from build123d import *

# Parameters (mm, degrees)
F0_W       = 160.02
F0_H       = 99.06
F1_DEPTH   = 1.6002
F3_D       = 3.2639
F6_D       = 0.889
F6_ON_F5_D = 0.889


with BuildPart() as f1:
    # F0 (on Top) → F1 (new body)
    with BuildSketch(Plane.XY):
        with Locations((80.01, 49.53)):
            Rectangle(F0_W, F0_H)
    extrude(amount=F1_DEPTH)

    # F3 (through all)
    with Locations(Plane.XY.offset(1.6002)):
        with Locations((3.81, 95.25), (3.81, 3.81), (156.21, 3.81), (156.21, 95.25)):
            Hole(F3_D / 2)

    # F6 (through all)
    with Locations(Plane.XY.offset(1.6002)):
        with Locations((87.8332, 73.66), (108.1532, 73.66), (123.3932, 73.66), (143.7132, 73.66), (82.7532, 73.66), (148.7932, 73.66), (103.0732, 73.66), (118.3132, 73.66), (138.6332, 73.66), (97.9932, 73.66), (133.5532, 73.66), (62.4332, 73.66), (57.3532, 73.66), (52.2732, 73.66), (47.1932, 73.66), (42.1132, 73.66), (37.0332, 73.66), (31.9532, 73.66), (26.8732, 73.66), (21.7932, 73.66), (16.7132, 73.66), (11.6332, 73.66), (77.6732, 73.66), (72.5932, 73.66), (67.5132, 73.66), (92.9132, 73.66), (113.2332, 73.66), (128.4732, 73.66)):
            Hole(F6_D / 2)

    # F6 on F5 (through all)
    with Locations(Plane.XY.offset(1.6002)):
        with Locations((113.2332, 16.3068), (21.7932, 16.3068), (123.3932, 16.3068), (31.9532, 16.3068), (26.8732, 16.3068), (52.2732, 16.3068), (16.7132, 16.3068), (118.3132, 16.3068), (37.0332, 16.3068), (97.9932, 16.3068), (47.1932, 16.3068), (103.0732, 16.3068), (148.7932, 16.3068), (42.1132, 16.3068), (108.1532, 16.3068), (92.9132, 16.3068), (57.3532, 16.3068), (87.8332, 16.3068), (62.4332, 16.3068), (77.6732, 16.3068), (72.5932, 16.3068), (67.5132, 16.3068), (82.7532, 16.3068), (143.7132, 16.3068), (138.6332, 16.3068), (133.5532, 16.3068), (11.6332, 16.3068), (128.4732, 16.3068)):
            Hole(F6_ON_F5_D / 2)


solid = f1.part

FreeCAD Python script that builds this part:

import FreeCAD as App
import Part
import Sketcher
Q = App.Units.Quantity


def add_polygon(sketch, points):
    """Adds a closed chain of lines whose ends are joined by coincident constraints."""
    first, n = sketch.GeometryCount, len(points)
    for a, b in zip(points, points[1:] + points[:1]):
        sketch.addGeometry(Part.LineSegment(App.Vector(*a, 0), App.Vector(*b, 0)), False)
    for i in range(n):
        sketch.addConstraint(Sketcher.Constraint("Coincident", first + i, 2, first + (i + 1) % n, 1))

doc = App.newDocument("Part")
params = doc.addObject("Spreadsheet::Sheet", "Params")
for row, (alias, value) in enumerate([
    ("sketch1_width", "6.3 in"),
    ("sketch1_height", "3.9 in"),
    ("pad1_length", "0.063 in"),
    ("hole_diameter", "0.1285 in"),
    ("sketch3_diameter", "0.035 in"),
    ("hole2_diameter", "0.035 in"),
    ("sketch4_diameter", "0.035 in"),
    ("hole3_diameter", "0.035 in"),
], start=1):
    params.set(f"A{row}", alias)
    params.set(f"B{row}", "=" + value)
    params.setAlias(f"B{row}", alias)

body = doc.addObject("PartDesign::Body", "Body")

# Sketch on XY plane
sketch1 = doc.addObject("Sketcher::SketchObject", "Sketch")
body.addObject(sketch1)
sketch1.AttachmentSupport = (doc.XY_Plane, [""])
sketch1.MapMode = "FlatFace"
add_polygon(sketch1, [(0, 99), (0, 0), (160, 0), (160, 99)])  # lines 0-3
sketch1.addConstraint(Sketcher.Constraint("Vertical", 0))
sketch1.addConstraint(Sketcher.Constraint("Horizontal", 1))
sketch1.addConstraint(Sketcher.Constraint("Vertical", 2))
sketch1.addConstraint(Sketcher.Constraint("Horizontal", 3))
sketch1.addConstraint(Sketcher.Constraint("Coincident", 0, 2, -1, 1))
sketch1.addConstraint(Sketcher.Constraint("DistanceX", 1, 1, 1, 2, Q("6.3 in")))
sketch1.addConstraint(Sketcher.Constraint("DistanceY", 0, 2, 0, 1, Q("3.9 in")))
sketch1.setExpression("Constraints[9]", "Params.sketch1_width")
sketch1.setExpression("Constraints[10]", "Params.sketch1_height")
pad1 = doc.addObject("PartDesign::Pad", "Pad")
body.addObject(pad1)
pad1.Profile = sketch1
pad1.setExpression("Length", "Params.pad1_length")

# Sketch on XY plane
sketch2 = doc.addObject("Sketcher::SketchObject", "Sketch001")
body.addObject(sketch2)
sketch2.AttachmentSupport = (doc.XY_Plane, [""])
sketch2.MapMode = "FlatFace"
sketch2.AttachmentOffset = App.Placement(App.Vector(0, 0, 0.063 * 25.4), App.Rotation())
sketch2.addGeometry(Part.Circle(App.Vector(3.8, 95.2, 0), App.Vector(0, 0, 1), 1.6), False)
sketch2.addGeometry(Part.Circle(App.Vector(3.8, 3.8, 0), App.Vector(0, 0, 1), 1.6), False)
sketch2.addGeometry(Part.Circle(App.Vector(156.2, 3.8, 0), App.Vector(0, 0, 1), 1.6), False)
sketch2.addGeometry(Part.Circle(App.Vector(156.2, 95.2, 0), App.Vector(0, 0, 1), 1.6), False)
sketch2.addConstraint(Sketcher.Constraint("Equal", 0, 1))
sketch2.addConstraint(Sketcher.Constraint("Equal", 1, 2))
sketch2.addConstraint(Sketcher.Constraint("Equal", 2, 3))
sketch2.addConstraint(Sketcher.Constraint("Horizontal", 1, 3, 2, 3))
sketch2.addConstraint(Sketcher.Constraint("Horizontal", 0, 3, 3, 3))
sketch2.addConstraint(Sketcher.Constraint("Vertical", 0, 3, 1, 3))
sketch2.addConstraint(Sketcher.Constraint("Vertical", 2, 3, 3, 3))
sketch2.addConstraint(Sketcher.Constraint("DistanceX", 1, 3, 2, 3, Q("6 in")))
sketch2.addConstraint(Sketcher.Constraint("Diameter", 0, Q("0.1285 in")))
sketch2.addConstraint(Sketcher.Constraint("DistanceY", 1, 3, 0, 3, Q("3.6 in")))
sketch2.addConstraint(Sketcher.Constraint("DistanceX", -1, 1, 0, 3, Q("0.15 in")))
sketch2.addConstraint(Sketcher.Constraint("DistanceY", -1, 1, 0, 3, Q("3.75 in")))
doc.recompute()
hole = doc.addObject("PartDesign::Hole", "Hole")
body.addObject(hole)
hole.Profile = sketch2
hole.ThreadType = "None"
hole.setExpression("Diameter", "Params.hole_diameter")
hole.DepthType = "ThroughAll"

# Sketch on XY plane
sketch3 = doc.addObject("Sketcher::SketchObject", "Sketch002")
body.addObject(sketch3)
sketch3.AttachmentSupport = (doc.XY_Plane, [""])
sketch3.MapMode = "FlatFace"
sketch3.AttachmentOffset = App.Placement(App.Vector(0, 0, 0.063 * 25.4), App.Rotation())
sketch3.addGeometry(Part.Circle(App.Vector(87.83, 73.66, 0), App.Vector(0, 0, 1), 0.44), False)
sketch3.addGeometry(Part.Circle(App.Vector(108.15, 73.66, 0), App.Vector(0, 0, 1), 0.44), False)
sketch3.addGeometry(Part.Circle(App.Vector(123.39, 73.66, 0), App.Vector(0, 0, 1), 0.44), False)
sketch3.addGeometry(Part.Circle(App.Vector(143.71, 73.66, 0), App.Vector(0, 0, 1), 0.44), False)
sketch3.addGeometry(Part.Circle(App.Vector(82.75, 73.66, 0), App.Vector(0, 0, 1), 0.44), False)
sketch3.addGeometry(Part.Circle(App.Vector(148.79, 73.66, 0), App.Vector(0, 0, 1), 0.44), False)
sketch3.addGeometry(Part.Circle(App.Vector(103.07, 73.66, 0), App.Vector(0, 0, 1), 0.44), False)
sketch3.addGeometry(Part.Circle(App.Vector(118.31, 73.66, 0), App.Vector(0, 0, 1), 0.44), False)
sketch3.addGeometry(Part.Circle(App.Vector(138.63, 73.66, 0), App.Vector(0, 0, 1), 0.44), False)
sketch3.addGeometry(Part.Circle(App.Vector(97.99, 73.66, 0), App.Vector(0, 0, 1), 0.44), False)
sketch3.addGeometry(Part.Circle(App.Vector(133.55, 73.66, 0), App.Vector(0, 0, 1), 0.44), False)
sketch3.addGeometry(Part.Circle(App.Vector(62.43, 73.66, 0), App.Vector(0, 0, 1), 0.44), False)
sketch3.addGeometry(Part.Circle(App.Vector(57.35, 73.66, 0), App.Vector(0, 0, 1), 0.44), False)
sketch3.addGeometry(Part.Circle(App.Vector(52.27, 73.66, 0), App.Vector(0, 0, 1), 0.44), False)
sketch3.addGeometry(Part.Circle(App.Vector(47.19, 73.66, 0), App.Vector(0, 0, 1), 0.44), False)
sketch3.addGeometry(Part.Circle(App.Vector(42.11, 73.66, 0), App.Vector(0, 0, 1), 0.44), False)
sketch3.addGeometry(Part.Circle(App.Vector(37.03, 73.66, 0), App.Vector(0, 0, 1), 0.44), False)
sketch3.addGeometry(Part.Circle(App.Vector(31.95, 73.66, 0), App.Vector(0, 0, 1), 0.44), False)
sketch3.addGeometry(Part.Circle(App.Vector(26.87, 73.66, 0), App.Vector(0, 0, 1), 0.44), False)
sketch3.addGeometry(Part.Circle(App.Vector(21.79, 73.66, 0), App.Vector(0, 0, 1), 0.44), False)
sketch3.addGeometry(Part.Circle(App.Vector(16.71, 73.66, 0), App.Vector(0, 0, 1), 0.44), False)
sketch3.addGeometry(Part.Circle(App.Vector(11.63, 73.66, 0), App.Vector(0, 0, 1), 0.44), False)
sketch3.addGeometry(Part.Circle(App.Vector(77.67, 73.66, 0), App.Vector(0, 0, 1), 0.44), False)
sketch3.addGeometry(Part.Circle(App.Vector(72.59, 73.66, 0), App.Vector(0, 0, 1), 0.44), False)
sketch3.addGeometry(Part.Circle(App.Vector(67.51, 73.66, 0), App.Vector(0, 0, 1), 0.44), False)
sketch3.addGeometry(Part.Circle(App.Vector(92.91, 73.66, 0), App.Vector(0, 0, 1), 0.44), False)
sketch3.addGeometry(Part.Circle(App.Vector(113.23, 73.66, 0), App.Vector(0, 0, 1), 0.44), False)
sketch3.addGeometry(Part.Circle(App.Vector(128.47, 73.66, 0), App.Vector(0, 0, 1), 0.44), False)
sketch3.addConstraint(Sketcher.Constraint("Equal", 0, 1))
sketch3.addConstraint(Sketcher.Constraint("Equal", 1, 2))
sketch3.addConstraint(Sketcher.Constraint("Equal", 2, 3))
sketch3.addConstraint(Sketcher.Constraint("Equal", 3, 4))
sketch3.addConstraint(Sketcher.Constraint("Equal", 4, 5))
sketch3.addConstraint(Sketcher.Constraint("Equal", 5, 6))
sketch3.addConstraint(Sketcher.Constraint("Equal", 6, 7))
sketch3.addConstraint(Sketcher.Constraint("Equal", 7, 8))
sketch3.addConstraint(Sketcher.Constraint("Equal", 8, 9))
sketch3.addConstraint(Sketcher.Constraint("Equal", 9, 10))
sketch3.addConstraint(Sketcher.Constraint("Equal", 10, 11))
sketch3.addConstraint(Sketcher.Constraint("Equal", 11, 12))
sketch3.addConstraint(Sketcher.Constraint("Equal", 12, 13))
sketch3.addConstraint(Sketcher.Constraint("Equal", 13, 14))
sketch3.addConstraint(Sketcher.Constraint("Equal", 14, 15))
sketch3.addConstraint(Sketcher.Constraint("Equal", 15, 16))
sketch3.addConstraint(Sketcher.Constraint("Equal", 16, 17))
sketch3.addConstraint(Sketcher.Constraint("Equal", 17, 18))
sketch3.addConstraint(Sketcher.Constraint("Equal", 18, 19))
sketch3.addConstraint(Sketcher.Constraint("Equal", 19, 20))
sketch3.addConstraint(Sketcher.Constraint("Equal", 20, 21))
sketch3.addConstraint(Sketcher.Constraint("Equal", 21, 22))
sketch3.addConstraint(Sketcher.Constraint("Equal", 22, 23))
sketch3.addConstraint(Sketcher.Constraint("Equal", 23, 24))
sketch3.addConstraint(Sketcher.Constraint("Equal", 24, 25))
sketch3.addConstraint(Sketcher.Constraint("Equal", 25, 26))
sketch3.addConstraint(Sketcher.Constraint("Equal", 26, 27))
sketch3.addConstraint(Sketcher.Constraint("Horizontal", 0, 3, 1, 3))
sketch3.addConstraint(Sketcher.Constraint("Horizontal", 1, 3, 2, 3))
sketch3.addConstraint(Sketcher.Constraint("Horizontal", 2, 3, 3, 3))
sketch3.addConstraint(Sketcher.Constraint("Horizontal", 3, 3, 4, 3))
sketch3.addConstraint(Sketcher.Constraint("Horizontal", 4, 3, 5, 3))
sketch3.addConstraint(Sketcher.Constraint("Horizontal", 5, 3, 6, 3))
sketch3.addConstraint(Sketcher.Constraint("Horizontal", 6, 3, 7, 3))
sketch3.addConstraint(Sketcher.Constraint("Horizontal", 7, 3, 8, 3))
sketch3.addConstraint(Sketcher.Constraint("Horizontal", 8, 3, 9, 3))
sketch3.addConstraint(Sketcher.Constraint("Horizontal", 9, 3, 10, 3))
sketch3.addConstraint(Sketcher.Constraint("Horizontal", 10, 3, 11, 3))
sketch3.addConstraint(Sketcher.Constraint("Horizontal", 11, 3, 12, 3))
sketch3.addConstraint(Sketcher.Constraint("Horizontal", 12, 3, 13, 3))
sketch3.addConstraint(Sketcher.Constraint("Horizontal", 13, 3, 14, 3))
sketch3.addConstraint(Sketcher.Constraint("Horizontal", 14, 3, 15, 3))
sketch3.addConstraint(Sketcher.Constraint("Horizontal", 15, 3, 16, 3))
sketch3.addConstraint(Sketcher.Constraint("Horizontal", 16, 3, 17, 3))
sketch3.addConstraint(Sketcher.Constraint("Horizontal", 17, 3, 18, 3))
sketch3.addConstraint(Sketcher.Constraint("Horizontal", 18, 3, 19, 3))
sketch3.addConstraint(Sketcher.Constraint("Horizontal", 19, 3, 20, 3))
sketch3.addConstraint(Sketcher.Constraint("Horizontal", 20, 3, 21, 3))
sketch3.addConstraint(Sketcher.Constraint("Horizontal", 21, 3, 22, 3))
sketch3.addConstraint(Sketcher.Constraint("Horizontal", 22, 3, 23, 3))
sketch3.addConstraint(Sketcher.Constraint("Horizontal", 23, 3, 24, 3))
sketch3.addConstraint(Sketcher.Constraint("Horizontal", 24, 3, 25, 3))
sketch3.addConstraint(Sketcher.Constraint("Horizontal", 25, 3, 26, 3))
sketch3.addConstraint(Sketcher.Constraint("Horizontal", 26, 3, 27, 3))
sketch3.addConstraint(Sketcher.Constraint("Diameter", 0, Q("0.035 in")))
sketch3.addConstraint(Sketcher.Constraint("DistanceX", 4, 3, 1, 3, Q("1 in")))
sketch3.addConstraint(Sketcher.Constraint("DistanceX", 2, 3, 5, 3, Q("1 in")))
sketch3.addConstraint(Sketcher.Constraint("DistanceX", 7, 3, 3, 3, Q("1 in")))
sketch3.addConstraint(Sketcher.Constraint("DistanceX", 11, 3, 0, 3, Q("1 in")))
sketch3.addConstraint(Sketcher.Constraint("DistanceX", 12, 3, 4, 3, Q("1 in")))
sketch3.addConstraint(Sketcher.Constraint("DistanceX", 16, 3, 11, 3, Q("1 in")))
sketch3.addConstraint(Sketcher.Constraint("DistanceX", 17, 3, 12, 3, Q("1 in")))
sketch3.addConstraint(Sketcher.Constraint("DistanceX", 18, 3, 13, 3, Q("1 in")))
sketch3.addConstraint(Sketcher.Constraint("DistanceX", 19, 3, 14, 3, Q("1 in")))
sketch3.addConstraint(Sketcher.Constraint("DistanceX", 20, 3, 15, 3, Q("1 in")))
sketch3.addConstraint(Sketcher.Constraint("DistanceX", 21, 3, 16, 3, Q("1 in")))
sketch3.addConstraint(Sketcher.Constraint("DistanceY", -1, 1, 0, 3, Q("2.9 in")))
sketch3.addConstraint(Sketcher.Constraint("DistanceX", 0, 3, 1, 3, Q("0.8 in")))
sketch3.addConstraint(Sketcher.Constraint("DistanceX", 1, 3, 2, 3, Q("0.6 in")))
sketch3.addConstraint(Sketcher.Constraint("DistanceX", 2, 3, 3, 3, Q("0.8 in")))
sketch3.addConstraint(Sketcher.Constraint("DistanceX", 6, 3, 1, 3, Q("0.2 in")))
sketch3.addConstraint(Sketcher.Constraint("DistanceX", 8, 3, 3, 3, Q("0.2 in")))
sketch3.addConstraint(Sketcher.Constraint("DistanceX", 9, 3, 6, 3, Q("0.2 in")))
sketch3.addConstraint(Sketcher.Constraint("DistanceX", 10, 3, 8, 3, Q("0.2 in")))
sketch3.addConstraint(Sketcher.Constraint("DistanceX", 13, 3, 12, 3, Q("0.2 in")))
sketch3.addConstraint(Sketcher.Constraint("DistanceX", 14, 3, 13, 3, Q("0.2 in")))
sketch3.addConstraint(Sketcher.Constraint("DistanceX", 15, 3, 14, 3, Q("0.2 in")))
sketch3.addConstraint(Sketcher.Constraint("DistanceX", 22, 3, 4, 3, Q("0.2 in")))
sketch3.addConstraint(Sketcher.Constraint("DistanceX", 23, 3, 22, 3, Q("0.2 in")))
sketch3.addConstraint(Sketcher.Constraint("DistanceX", 11, 3, 24, 3, Q("0.2 in")))
sketch3.addConstraint(Sketcher.Constraint("DistanceX", 0, 3, 25, 3, Q("0.2 in")))
sketch3.addConstraint(Sketcher.Constraint("DistanceX", 1, 3, 26, 3, Q("0.2 in")))
sketch3.addConstraint(Sketcher.Constraint("DistanceX", 2, 3, 27, 3, Q("0.2 in")))
sketch3.addConstraint(Sketcher.Constraint("DistanceX", -1, 1, 0, 3, Q("3.458 in")))
sketch3.setExpression("Constraints[54]", "Params.sketch3_diameter")
doc.recompute()
hole2 = doc.addObject("PartDesign::Hole", "Hole001")
body.addObject(hole2)
hole2.Profile = sketch3
hole2.ThreadType = "None"
hole2.setExpression("Diameter", "Params.hole2_diameter")
hole2.DepthType = "ThroughAll"

# Sketch on XY plane
sketch4 = doc.addObject("Sketcher::SketchObject", "Sketch003")
body.addObject(sketch4)
sketch4.AttachmentSupport = (doc.XY_Plane, [""])
sketch4.MapMode = "FlatFace"
sketch4.AttachmentOffset = App.Placement(App.Vector(0, 0, 0.063 * 25.4), App.Rotation())
sketch4.addGeometry(Part.Circle(App.Vector(113.23, 16.31, 0), App.Vector(0, 0, 1), 0.44), False)
sketch4.addGeometry(Part.Circle(App.Vector(21.79, 16.31, 0), App.Vector(0, 0, 1), 0.44), False)
sketch4.addGeometry(Part.Circle(App.Vector(123.39, 16.31, 0), App.Vector(0, 0, 1), 0.44), False)
sketch4.addGeometry(Part.Circle(App.Vector(31.95, 16.31, 0), App.Vector(0, 0, 1), 0.44), False)
sketch4.addGeometry(Part.Circle(App.Vector(26.87, 16.31, 0), App.Vector(0, 0, 1), 0.44), False)
sketch4.addGeometry(Part.Circle(App.Vector(52.27, 16.31, 0), App.Vector(0, 0, 1), 0.44), False)
sketch4.addGeometry(Part.Circle(App.Vector(16.71, 16.31, 0), App.Vector(0, 0, 1), 0.44), False)
sketch4.addGeometry(Part.Circle(App.Vector(118.31, 16.31, 0), App.Vector(0, 0, 1), 0.44), False)
sketch4.addGeometry(Part.Circle(App.Vector(37.03, 16.31, 0), App.Vector(0, 0, 1), 0.44), False)
sketch4.addGeometry(Part.Circle(App.Vector(97.99, 16.31, 0), App.Vector(0, 0, 1), 0.44), False)
sketch4.addGeometry(Part.Circle(App.Vector(47.19, 16.31, 0), App.Vector(0, 0, 1), 0.44), False)
sketch4.addGeometry(Part.Circle(App.Vector(103.07, 16.31, 0), App.Vector(0, 0, 1), 0.44), False)
sketch4.addGeometry(Part.Circle(App.Vector(148.79, 16.31, 0), App.Vector(0, 0, 1), 0.44), False)
sketch4.addGeometry(Part.Circle(App.Vector(42.11, 16.31, 0), App.Vector(0, 0, 1), 0.44), False)
sketch4.addGeometry(Part.Circle(App.Vector(108.15, 16.31, 0), App.Vector(0, 0, 1), 0.44), False)
sketch4.addGeometry(Part.Circle(App.Vector(92.91, 16.31, 0), App.Vector(0, 0, 1), 0.44), False)
sketch4.addGeometry(Part.Circle(App.Vector(57.35, 16.31, 0), App.Vector(0, 0, 1), 0.44), False)
sketch4.addGeometry(Part.Circle(App.Vector(87.83, 16.31, 0), App.Vector(0, 0, 1), 0.44), False)
sketch4.addGeometry(Part.Circle(App.Vector(62.43, 16.31, 0), App.Vector(0, 0, 1), 0.44), False)
sketch4.addGeometry(Part.Circle(App.Vector(77.67, 16.31, 0), App.Vector(0, 0, 1), 0.44), False)
sketch4.addGeometry(Part.Circle(App.Vector(72.59, 16.31, 0), App.Vector(0, 0, 1), 0.44), False)
sketch4.addGeometry(Part.Circle(App.Vector(67.51, 16.31, 0), App.Vector(0, 0, 1), 0.44), False)
sketch4.addGeometry(Part.Circle(App.Vector(82.75, 16.31, 0), App.Vector(0, 0, 1), 0.44), False)
sketch4.addGeometry(Part.Circle(App.Vector(143.71, 16.31, 0), App.Vector(0, 0, 1), 0.44), False)
sketch4.addGeometry(Part.Circle(App.Vector(138.63, 16.31, 0), App.Vector(0, 0, 1), 0.44), False)
sketch4.addGeometry(Part.Circle(App.Vector(133.55, 16.31, 0), App.Vector(0, 0, 1), 0.44), False)
sketch4.addGeometry(Part.Circle(App.Vector(11.63, 16.31, 0), App.Vector(0, 0, 1), 0.44), False)
sketch4.addGeometry(Part.Circle(App.Vector(128.47, 16.31, 0), App.Vector(0, 0, 1), 0.44), False)
sketch4.addConstraint(Sketcher.Constraint("Equal", 0, 1))
sketch4.addConstraint(Sketcher.Constraint("Equal", 1, 2))
sketch4.addConstraint(Sketcher.Constraint("Equal", 2, 3))
sketch4.addConstraint(Sketcher.Constraint("Equal", 3, 4))
sketch4.addConstraint(Sketcher.Constraint("Equal", 4, 5))
sketch4.addConstraint(Sketcher.Constraint("Equal", 5, 6))
sketch4.addConstraint(Sketcher.Constraint("Equal", 6, 7))
sketch4.addConstraint(Sketcher.Constraint("Equal", 7, 8))
sketch4.addConstraint(Sketcher.Constraint("Equal", 8, 9))
sketch4.addConstraint(Sketcher.Constraint("Equal", 9, 10))
sketch4.addConstraint(Sketcher.Constraint("Equal", 10, 11))
sketch4.addConstraint(Sketcher.Constraint("Equal", 11, 12))
sketch4.addConstraint(Sketcher.Constraint("Equal", 12, 13))
sketch4.addConstraint(Sketcher.Constraint("Equal", 13, 14))
sketch4.addConstraint(Sketcher.Constraint("Equal", 14, 15))
sketch4.addConstraint(Sketcher.Constraint("Equal", 15, 16))
sketch4.addConstraint(Sketcher.Constraint("Equal", 16, 17))
sketch4.addConstraint(Sketcher.Constraint("Equal", 17, 18))
sketch4.addConstraint(Sketcher.Constraint("Equal", 18, 19))
sketch4.addConstraint(Sketcher.Constraint("Equal", 19, 20))
sketch4.addConstraint(Sketcher.Constraint("Equal", 20, 21))
sketch4.addConstraint(Sketcher.Constraint("Equal", 21, 22))
sketch4.addConstraint(Sketcher.Constraint("Equal", 22, 23))
sketch4.addConstraint(Sketcher.Constraint("Equal", 23, 24))
sketch4.addConstraint(Sketcher.Constraint("Equal", 24, 25))
sketch4.addConstraint(Sketcher.Constraint("Equal", 25, 26))
sketch4.addConstraint(Sketcher.Constraint("Equal", 26, 27))
sketch4.addConstraint(Sketcher.Constraint("Horizontal", 0, 3, 1, 3))
sketch4.addConstraint(Sketcher.Constraint("Horizontal", 1, 3, 2, 3))
sketch4.addConstraint(Sketcher.Constraint("Horizontal", 2, 3, 3, 3))
sketch4.addConstraint(Sketcher.Constraint("Horizontal", 3, 3, 4, 3))
sketch4.addConstraint(Sketcher.Constraint("Horizontal", 4, 3, 5, 3))
sketch4.addConstraint(Sketcher.Constraint("Horizontal", 5, 3, 6, 3))
sketch4.addConstraint(Sketcher.Constraint("Horizontal", 6, 3, 7, 3))
sketch4.addConstraint(Sketcher.Constraint("Horizontal", 7, 3, 8, 3))
sketch4.addConstraint(Sketcher.Constraint("Horizontal", 8, 3, 9, 3))
sketch4.addConstraint(Sketcher.Constraint("Horizontal", 9, 3, 10, 3))
sketch4.addConstraint(Sketcher.Constraint("Horizontal", 10, 3, 11, 3))
sketch4.addConstraint(Sketcher.Constraint("Horizontal", 11, 3, 12, 3))
sketch4.addConstraint(Sketcher.Constraint("Horizontal", 12, 3, 13, 3))
sketch4.addConstraint(Sketcher.Constraint("Horizontal", 13, 3, 14, 3))
sketch4.addConstraint(Sketcher.Constraint("Horizontal", 14, 3, 15, 3))
sketch4.addConstraint(Sketcher.Constraint("Horizontal", 15, 3, 16, 3))
sketch4.addConstraint(Sketcher.Constraint("Horizontal", 16, 3, 17, 3))
sketch4.addConstraint(Sketcher.Constraint("Horizontal", 17, 3, 18, 3))
sketch4.addConstraint(Sketcher.Constraint("Horizontal", 18, 3, 19, 3))
sketch4.addConstraint(Sketcher.Constraint("Horizontal", 19, 3, 20, 3))
sketch4.addConstraint(Sketcher.Constraint("Horizontal", 20, 3, 21, 3))
sketch4.addConstraint(Sketcher.Constraint("Horizontal", 21, 3, 22, 3))
sketch4.addConstraint(Sketcher.Constraint("Horizontal", 22, 3, 23, 3))
sketch4.addConstraint(Sketcher.Constraint("Horizontal", 23, 3, 24, 3))
sketch4.addConstraint(Sketcher.Constraint("Horizontal", 24, 3, 25, 3))
sketch4.addConstraint(Sketcher.Constraint("Horizontal", 25, 3, 26, 3))
sketch4.addConstraint(Sketcher.Constraint("Horizontal", 26, 3, 27, 3))
sketch4.addConstraint(Sketcher.Constraint("Diameter", 0, Q("0.035 in")))
sketch4.addConstraint(Sketcher.Constraint("DistanceX", 1, 3, 2, 3, Q("4 in")))
sketch4.addConstraint(Sketcher.Constraint("DistanceX", 4, 3, 5, 3, Q("1 in")))
sketch4.addConstraint(Sketcher.Constraint("DistanceX", 9, 3, 2, 3, Q("1 in")))
sketch4.addConstraint(Sketcher.Constraint("DistanceX", 1, 3, 10, 3, Q("1 in")))
sketch4.addConstraint(Sketcher.Constraint("DistanceX", 5, 3, 11, 3, Q("2 in")))
sketch4.addConstraint(Sketcher.Constraint("DistanceX", 2, 3, 12, 3, Q("1 in")))
sketch4.addConstraint(Sketcher.Constraint("DistanceX", 15, 3, 7, 3, Q("1 in")))
sketch4.addConstraint(Sketcher.Constraint("DistanceX", 3, 3, 16, 3, Q("1 in")))
sketch4.addConstraint(Sketcher.Constraint("DistanceX", 17, 3, 0, 3, Q("1 in")))
sketch4.addConstraint(Sketcher.Constraint("DistanceX", 8, 3, 18, 3, Q("1 in")))
sketch4.addConstraint(Sketcher.Constraint("DistanceX", 7, 3, 23, 3, Q("1 in")))
sketch4.addConstraint(Sketcher.Constraint("DistanceX", 0, 3, 24, 3, Q("1 in")))
sketch4.addConstraint(Sketcher.Constraint("DistanceX", 26, 3, 8, 3, Q("1 in")))
sketch4.addConstraint(Sketcher.Constraint("DistanceX", 1, 3, 0, 3, Q("3.6 in")))
sketch4.addConstraint(Sketcher.Constraint("DistanceX", 1, 3, 3, 3, Q("0.4 in")))
sketch4.addConstraint(Sketcher.Constraint("DistanceX", 4, 3, 3, 3, Q("0.2 in")))
sketch4.addConstraint(Sketcher.Constraint("DistanceX", 6, 3, 1, 3, Q("0.2 in")))
sketch4.addConstraint(Sketcher.Constraint("DistanceX", 0, 3, 7, 3, Q("0.2 in")))
sketch4.addConstraint(Sketcher.Constraint("DistanceX", 3, 3, 8, 3, Q("0.2 in")))
sketch4.addConstraint(Sketcher.Constraint("DistanceX", 8, 3, 13, 3, Q("0.2 in")))
sketch4.addConstraint(Sketcher.Constraint("DistanceX", 14, 3, 0, 3, Q("0.2 in")))
sketch4.addConstraint(Sketcher.Constraint("DistanceX", 19, 3, 17, 3, Q("0.4 in")))
sketch4.addConstraint(Sketcher.Constraint("DistanceX", 20, 3, 19, 3, Q("0.2 in")))
sketch4.addConstraint(Sketcher.Constraint("DistanceX", 18, 3, 21, 3, Q("0.2 in")))
sketch4.addConstraint(Sketcher.Constraint("DistanceX", 22, 3, 17, 3, Q("0.2 in")))
sketch4.addConstraint(Sketcher.Constraint("DistanceX", 25, 3, 24, 3, Q("0.2 in")))
sketch4.addConstraint(Sketcher.Constraint("DistanceX", 2, 3, 27, 3, Q("0.2 in")))
sketch4.addConstraint(Sketcher.Constraint("DistanceX", -1, 1, 0, 3, Q("4.458 in")))
sketch4.addConstraint(Sketcher.Constraint("DistanceY", -1, 1, 0, 3, Q("0.642 in")))
sketch4.setExpression("Constraints[54]", "Params.sketch4_diameter")
doc.recompute()
hole3 = doc.addObject("PartDesign::Hole", "Hole002")
body.addObject(hole3)
hole3.Profile = sketch4
hole3.ThreadType = "None"
hole3.setExpression("Diameter", "Params.hole3_diameter")
hole3.DepthType = "ThroughAll"

doc.recompute()
